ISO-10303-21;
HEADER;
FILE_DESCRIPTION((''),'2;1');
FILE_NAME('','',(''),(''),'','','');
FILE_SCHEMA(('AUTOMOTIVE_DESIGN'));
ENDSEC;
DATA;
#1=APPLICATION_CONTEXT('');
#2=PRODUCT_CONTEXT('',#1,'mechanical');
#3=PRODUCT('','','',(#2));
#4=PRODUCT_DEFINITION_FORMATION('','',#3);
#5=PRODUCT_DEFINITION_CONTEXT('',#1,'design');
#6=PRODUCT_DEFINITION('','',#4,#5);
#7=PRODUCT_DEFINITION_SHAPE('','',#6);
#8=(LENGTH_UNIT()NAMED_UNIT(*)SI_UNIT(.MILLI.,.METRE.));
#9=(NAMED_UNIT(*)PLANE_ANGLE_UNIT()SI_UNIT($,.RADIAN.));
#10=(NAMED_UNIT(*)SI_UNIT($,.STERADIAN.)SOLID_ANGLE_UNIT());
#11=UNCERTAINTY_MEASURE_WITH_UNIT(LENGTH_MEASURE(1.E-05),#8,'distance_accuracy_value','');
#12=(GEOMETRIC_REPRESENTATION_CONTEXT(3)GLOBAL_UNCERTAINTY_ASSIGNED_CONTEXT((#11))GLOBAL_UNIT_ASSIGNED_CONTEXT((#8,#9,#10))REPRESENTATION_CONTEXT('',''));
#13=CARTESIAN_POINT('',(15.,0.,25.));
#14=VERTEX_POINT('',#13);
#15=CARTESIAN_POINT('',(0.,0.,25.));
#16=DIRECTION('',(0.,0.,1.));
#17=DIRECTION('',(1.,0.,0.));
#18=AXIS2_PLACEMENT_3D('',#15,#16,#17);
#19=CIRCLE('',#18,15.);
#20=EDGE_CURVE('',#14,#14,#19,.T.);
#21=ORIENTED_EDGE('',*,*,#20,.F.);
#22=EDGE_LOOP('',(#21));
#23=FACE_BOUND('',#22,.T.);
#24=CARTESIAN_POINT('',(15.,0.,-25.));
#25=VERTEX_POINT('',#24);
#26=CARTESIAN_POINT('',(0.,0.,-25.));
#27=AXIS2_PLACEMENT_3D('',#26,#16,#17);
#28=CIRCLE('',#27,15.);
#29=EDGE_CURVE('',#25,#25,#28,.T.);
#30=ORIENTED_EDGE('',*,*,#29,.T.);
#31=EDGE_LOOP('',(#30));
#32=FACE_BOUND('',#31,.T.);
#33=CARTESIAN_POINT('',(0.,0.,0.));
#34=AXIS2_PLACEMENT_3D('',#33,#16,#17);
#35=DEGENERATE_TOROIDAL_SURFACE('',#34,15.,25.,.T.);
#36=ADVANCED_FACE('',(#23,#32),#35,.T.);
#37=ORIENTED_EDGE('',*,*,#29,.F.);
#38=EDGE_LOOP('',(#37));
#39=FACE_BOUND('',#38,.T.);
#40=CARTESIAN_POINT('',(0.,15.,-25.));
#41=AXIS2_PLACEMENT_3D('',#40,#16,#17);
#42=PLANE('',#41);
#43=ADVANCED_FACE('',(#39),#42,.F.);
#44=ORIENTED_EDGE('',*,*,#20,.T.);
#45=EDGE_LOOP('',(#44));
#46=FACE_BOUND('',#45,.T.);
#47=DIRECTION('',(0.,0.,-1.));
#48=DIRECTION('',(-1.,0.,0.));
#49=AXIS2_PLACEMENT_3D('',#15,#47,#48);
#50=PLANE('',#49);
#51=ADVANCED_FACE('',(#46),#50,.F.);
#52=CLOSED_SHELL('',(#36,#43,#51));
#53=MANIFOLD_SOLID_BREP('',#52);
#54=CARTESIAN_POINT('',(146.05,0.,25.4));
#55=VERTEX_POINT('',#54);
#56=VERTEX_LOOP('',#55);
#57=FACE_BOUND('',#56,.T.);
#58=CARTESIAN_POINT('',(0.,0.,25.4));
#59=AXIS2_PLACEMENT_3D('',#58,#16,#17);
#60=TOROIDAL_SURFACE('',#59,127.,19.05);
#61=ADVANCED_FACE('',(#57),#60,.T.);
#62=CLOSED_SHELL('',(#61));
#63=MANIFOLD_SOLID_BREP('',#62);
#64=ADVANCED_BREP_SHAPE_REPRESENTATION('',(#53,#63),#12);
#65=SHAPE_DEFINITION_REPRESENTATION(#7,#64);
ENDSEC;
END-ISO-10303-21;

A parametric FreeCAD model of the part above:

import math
import FreeCAD as App
import Part
import Sketcher
from FreeCAD import Vector
Q = App.Units.Quantity

doc = App.newDocument("Part")
body = doc.addObject("PartDesign::Body", "Body")
body.AllowCompound = True

sketch1 = doc.addObject("Sketcher::SketchObject", "Sketch")
body.addObject(sketch1)
sketch1.AttachmentSupport = (doc.YZ_Plane, [""])
sketch1.MapMode = "FlatFace"
sketch1.addGeometry(Part.Circle(Vector(127, 25, 0), Vector(0, 0, 1), 19), False)
sketch1.addGeometry(Part.LineSegment(Vector(0, 25, 0), Vector(0, -25, 0)), False)
sketch1.addGeometry(Part.LineSegment(Vector(0, -25, 0), Vector(15, -25, 0)), False)
sketch1.addGeometry(Part.ArcOfCircle(Part.Circle(Vector(15, 0, 0), Vector(0, 0, 1), 25), math.radians(-90), math.radians(90)), False)
sketch1.addGeometry(Part.LineSegment(Vector(15, 25, 0), Vector(0, 25, 0)), False)
sketch1.addConstraint(Sketcher.Constraint("Coincident", 1, 2, 2, 1))
sketch1.addConstraint(Sketcher.Constraint("Tangent", 2, 2, 3, 1))
sketch1.addConstraint(Sketcher.Constraint("Tangent", 3, 2, 4, 1))
sketch1.addConstraint(Sketcher.Constraint("Coincident", 4, 2, 1, 1))
sketch1.addConstraint(Sketcher.Constraint("Vertical", 1))
sketch1.addConstraint(Sketcher.Constraint("Horizontal", 2))
sketch1.addConstraint(Sketcher.Constraint("Horizontal", 4))
sketch1.addConstraint(Sketcher.Constraint("Symmetric", 1, 2, 4, 2, -1, 1))
sketch1.addConstraint(Sketcher.Constraint("Radius", 3, Q("25 mm")))
sketch1.addConstraint(Sketcher.Constraint("Diameter", 0, Q("38.1 mm")))
sketch1.addConstraint(Sketcher.Constraint("DistanceX", 2, 1, 2, 2, Q("15 mm")))
sketch1.addConstraint(Sketcher.Constraint("DistanceX", -1, 1, 0, 3, Q("127 mm")))
sketch1.addConstraint(Sketcher.Constraint("DistanceY", -1, 1, 0, 3, Q("25.4 mm")))
revolution = doc.addObject("PartDesign::Revolution", "Revolution")
body.addObject(revolution)
revolution.Profile = sketch1
revolution.ReferenceAxis = (sketch1, ["V_Axis"])
revolution.Angle = 360

doc.recompute()
